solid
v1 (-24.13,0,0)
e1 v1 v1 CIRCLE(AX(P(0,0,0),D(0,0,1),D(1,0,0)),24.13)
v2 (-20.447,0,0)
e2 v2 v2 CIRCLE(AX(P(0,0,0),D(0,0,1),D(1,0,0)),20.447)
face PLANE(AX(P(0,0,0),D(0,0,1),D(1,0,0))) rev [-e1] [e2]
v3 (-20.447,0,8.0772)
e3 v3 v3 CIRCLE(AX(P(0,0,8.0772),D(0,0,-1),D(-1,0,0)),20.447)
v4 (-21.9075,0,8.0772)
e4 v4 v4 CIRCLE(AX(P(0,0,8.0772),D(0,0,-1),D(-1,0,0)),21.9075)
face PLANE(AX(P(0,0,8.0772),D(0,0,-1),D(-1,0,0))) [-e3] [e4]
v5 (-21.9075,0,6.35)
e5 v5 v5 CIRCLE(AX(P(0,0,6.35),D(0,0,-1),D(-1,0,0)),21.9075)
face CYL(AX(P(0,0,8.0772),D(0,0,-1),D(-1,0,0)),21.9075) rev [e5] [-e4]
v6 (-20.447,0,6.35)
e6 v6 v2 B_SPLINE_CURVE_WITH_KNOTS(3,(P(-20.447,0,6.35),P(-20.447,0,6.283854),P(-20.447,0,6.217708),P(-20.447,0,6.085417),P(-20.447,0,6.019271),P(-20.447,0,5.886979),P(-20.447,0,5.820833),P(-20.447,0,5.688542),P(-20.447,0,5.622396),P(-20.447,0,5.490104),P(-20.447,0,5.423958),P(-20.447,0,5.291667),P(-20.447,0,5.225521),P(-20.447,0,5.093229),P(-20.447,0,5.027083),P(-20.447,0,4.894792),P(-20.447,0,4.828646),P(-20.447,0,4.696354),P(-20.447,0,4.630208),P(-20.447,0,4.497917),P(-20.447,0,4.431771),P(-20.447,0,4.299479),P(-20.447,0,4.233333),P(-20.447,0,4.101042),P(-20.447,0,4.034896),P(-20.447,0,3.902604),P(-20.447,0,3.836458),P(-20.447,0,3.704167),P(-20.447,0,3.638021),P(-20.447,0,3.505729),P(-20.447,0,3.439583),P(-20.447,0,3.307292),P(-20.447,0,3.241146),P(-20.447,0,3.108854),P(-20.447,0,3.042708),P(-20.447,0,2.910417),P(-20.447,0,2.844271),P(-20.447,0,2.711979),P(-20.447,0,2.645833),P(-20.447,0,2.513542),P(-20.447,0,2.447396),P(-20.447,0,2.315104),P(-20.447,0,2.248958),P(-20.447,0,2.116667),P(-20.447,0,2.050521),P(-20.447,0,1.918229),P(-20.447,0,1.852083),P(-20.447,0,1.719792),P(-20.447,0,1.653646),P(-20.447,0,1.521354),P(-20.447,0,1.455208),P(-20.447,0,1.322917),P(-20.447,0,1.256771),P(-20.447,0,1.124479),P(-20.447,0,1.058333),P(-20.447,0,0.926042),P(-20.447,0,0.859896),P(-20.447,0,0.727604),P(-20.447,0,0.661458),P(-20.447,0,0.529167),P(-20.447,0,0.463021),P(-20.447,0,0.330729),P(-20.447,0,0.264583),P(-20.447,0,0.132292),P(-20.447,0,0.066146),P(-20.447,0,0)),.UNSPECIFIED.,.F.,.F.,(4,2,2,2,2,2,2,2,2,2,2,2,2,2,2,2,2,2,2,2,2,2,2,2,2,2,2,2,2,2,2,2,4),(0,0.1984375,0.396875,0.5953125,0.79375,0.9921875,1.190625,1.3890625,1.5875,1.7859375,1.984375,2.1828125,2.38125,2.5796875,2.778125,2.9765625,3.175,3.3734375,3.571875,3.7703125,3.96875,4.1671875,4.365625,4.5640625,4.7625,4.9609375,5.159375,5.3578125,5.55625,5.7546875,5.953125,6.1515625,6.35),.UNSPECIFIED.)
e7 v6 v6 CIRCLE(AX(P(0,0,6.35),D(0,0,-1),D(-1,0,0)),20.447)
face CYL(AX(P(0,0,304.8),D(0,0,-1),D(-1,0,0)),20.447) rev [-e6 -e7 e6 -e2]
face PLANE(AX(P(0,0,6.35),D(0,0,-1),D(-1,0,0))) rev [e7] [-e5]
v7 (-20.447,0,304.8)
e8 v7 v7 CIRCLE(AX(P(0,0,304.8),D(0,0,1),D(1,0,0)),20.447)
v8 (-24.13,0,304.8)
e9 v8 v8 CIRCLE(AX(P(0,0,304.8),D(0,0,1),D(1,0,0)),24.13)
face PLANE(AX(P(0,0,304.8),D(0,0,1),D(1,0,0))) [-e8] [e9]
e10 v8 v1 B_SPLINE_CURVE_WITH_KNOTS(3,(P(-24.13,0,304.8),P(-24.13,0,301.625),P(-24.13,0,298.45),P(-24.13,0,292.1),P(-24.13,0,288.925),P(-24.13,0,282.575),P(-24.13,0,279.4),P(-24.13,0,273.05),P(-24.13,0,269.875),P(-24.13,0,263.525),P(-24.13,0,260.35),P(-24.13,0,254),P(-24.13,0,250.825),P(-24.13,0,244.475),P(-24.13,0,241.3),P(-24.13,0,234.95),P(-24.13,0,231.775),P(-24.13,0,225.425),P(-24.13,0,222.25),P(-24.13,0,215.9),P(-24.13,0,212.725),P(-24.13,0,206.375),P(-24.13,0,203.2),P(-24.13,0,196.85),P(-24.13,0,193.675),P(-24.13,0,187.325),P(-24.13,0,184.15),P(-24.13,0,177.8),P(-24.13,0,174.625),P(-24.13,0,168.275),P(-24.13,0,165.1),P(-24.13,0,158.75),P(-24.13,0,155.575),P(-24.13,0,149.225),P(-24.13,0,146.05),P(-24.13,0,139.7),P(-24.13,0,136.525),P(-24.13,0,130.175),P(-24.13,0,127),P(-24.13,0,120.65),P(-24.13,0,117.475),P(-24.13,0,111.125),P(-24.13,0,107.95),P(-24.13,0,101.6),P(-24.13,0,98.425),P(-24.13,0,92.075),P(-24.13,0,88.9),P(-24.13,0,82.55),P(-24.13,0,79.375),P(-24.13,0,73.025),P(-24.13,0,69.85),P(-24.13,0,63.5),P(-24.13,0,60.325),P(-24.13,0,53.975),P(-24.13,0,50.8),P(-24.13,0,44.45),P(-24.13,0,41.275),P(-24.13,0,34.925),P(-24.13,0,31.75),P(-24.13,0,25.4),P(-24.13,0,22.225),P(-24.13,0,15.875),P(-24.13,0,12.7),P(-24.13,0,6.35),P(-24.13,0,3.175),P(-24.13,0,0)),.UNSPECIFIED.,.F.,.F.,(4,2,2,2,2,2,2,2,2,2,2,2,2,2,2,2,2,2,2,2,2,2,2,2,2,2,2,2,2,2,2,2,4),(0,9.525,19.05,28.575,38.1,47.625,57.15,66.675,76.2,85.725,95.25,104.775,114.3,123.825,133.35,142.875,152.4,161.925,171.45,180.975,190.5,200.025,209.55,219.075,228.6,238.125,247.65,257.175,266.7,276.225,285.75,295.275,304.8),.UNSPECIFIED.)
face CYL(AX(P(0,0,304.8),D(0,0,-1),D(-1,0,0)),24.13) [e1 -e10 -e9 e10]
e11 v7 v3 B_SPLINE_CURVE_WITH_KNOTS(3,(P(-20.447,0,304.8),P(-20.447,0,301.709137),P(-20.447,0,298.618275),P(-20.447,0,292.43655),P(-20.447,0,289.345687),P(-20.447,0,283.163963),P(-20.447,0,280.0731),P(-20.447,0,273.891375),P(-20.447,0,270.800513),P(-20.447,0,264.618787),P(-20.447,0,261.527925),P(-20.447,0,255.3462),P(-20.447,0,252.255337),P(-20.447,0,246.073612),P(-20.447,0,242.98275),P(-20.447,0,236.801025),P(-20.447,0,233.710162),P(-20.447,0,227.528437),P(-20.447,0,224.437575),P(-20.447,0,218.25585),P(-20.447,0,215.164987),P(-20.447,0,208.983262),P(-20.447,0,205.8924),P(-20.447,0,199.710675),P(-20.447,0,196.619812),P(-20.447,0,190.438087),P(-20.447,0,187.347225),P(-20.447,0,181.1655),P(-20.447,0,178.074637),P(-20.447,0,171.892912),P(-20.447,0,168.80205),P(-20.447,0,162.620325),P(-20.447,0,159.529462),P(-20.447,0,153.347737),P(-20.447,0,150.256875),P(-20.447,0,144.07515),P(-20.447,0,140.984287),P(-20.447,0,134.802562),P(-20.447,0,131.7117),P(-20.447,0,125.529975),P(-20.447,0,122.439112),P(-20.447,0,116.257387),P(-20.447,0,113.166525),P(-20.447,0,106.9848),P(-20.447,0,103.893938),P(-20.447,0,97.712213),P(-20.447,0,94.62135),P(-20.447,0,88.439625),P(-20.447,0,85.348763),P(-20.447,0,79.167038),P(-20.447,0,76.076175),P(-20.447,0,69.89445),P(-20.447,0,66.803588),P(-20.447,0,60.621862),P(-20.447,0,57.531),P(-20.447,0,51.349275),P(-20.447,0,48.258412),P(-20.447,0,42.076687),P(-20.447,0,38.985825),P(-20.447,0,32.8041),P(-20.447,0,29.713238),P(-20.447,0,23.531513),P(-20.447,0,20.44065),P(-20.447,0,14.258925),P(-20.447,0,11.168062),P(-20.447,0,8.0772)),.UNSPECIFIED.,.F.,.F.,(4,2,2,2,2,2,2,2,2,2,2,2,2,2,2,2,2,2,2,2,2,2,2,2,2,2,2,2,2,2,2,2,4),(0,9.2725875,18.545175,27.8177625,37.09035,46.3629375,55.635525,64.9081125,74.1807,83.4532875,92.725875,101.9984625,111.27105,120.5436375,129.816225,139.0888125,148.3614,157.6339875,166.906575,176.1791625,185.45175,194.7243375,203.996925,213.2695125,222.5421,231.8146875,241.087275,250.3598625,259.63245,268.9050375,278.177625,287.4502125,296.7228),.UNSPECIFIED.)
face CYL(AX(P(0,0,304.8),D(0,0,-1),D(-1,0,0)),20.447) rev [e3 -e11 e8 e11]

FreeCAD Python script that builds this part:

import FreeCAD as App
import Part
import Sketcher

V = App.Vector
Q = App.Units.Quantity

doc = App.newDocument("Part")
body = doc.addObject("PartDesign::Body", "Body")

# Sketch on XY plane
sketch1 = body.newObject("Sketcher::SketchObject", "Sketch")
sketch1.AttachmentSupport = (doc.getObject("XY_Plane"), [""])
sketch1.MapMode = "FlatFace"
sketch1.addGeometry(Part.Circle(V(0, 0, 0), V(0, 0, 1), 24), False)
sketch1.addGeometry(Part.Circle(V(0, 0, 0), V(0, 0, 1), 20), False)
sketch1.addConstraint(Sketcher.Constraint("Coincident", 0, 3, -1, 1))
sketch1.addConstraint(Sketcher.Constraint("Coincident", 1, 3, -1, 1))
sketch1.addConstraint(Sketcher.Constraint("Diameter", 0, Q("1.9 in")))
sketch1.addConstraint(Sketcher.Constraint("Diameter", 1, Q("1.61 in")))
pad1 = body.newObject("PartDesign::Pad", "Pad")
pad1.Profile = sketch1
pad1.Length = Q("12 in")

# Sketch on XY plane
sketch2 = body.newObject("Sketcher::SketchObject", "Sketch001")
sketch2.AttachmentSupport = (doc.getObject("XY_Plane"), [""])
sketch2.MapMode = "FlatFace"
sketch2.AttachmentOffset = App.Placement(V(0, 0, 0.25 * 25.4), App.Rotation())
sketch2.addGeometry(Part.Circle(V(0, 0, 0), V(0, 0, 1), 22), False)
sketch2.addGeometry(Part.Circle(V(0, 0, 0), V(0, 0, 1), 20), False)
sketch2.addConstraint(Sketcher.Constraint("Coincident", 0, 3, -1, 1))
sketch2.addConstraint(Sketcher.Constraint("Coincident", 1, 3, -1, 1))
sketch2.addConstraint(Sketcher.Constraint("Diameter", 1, Q("1.61 in")))
sketch2.addConstraint(Sketcher.Constraint("Diameter", 0, Q("1.725 in")))
pocket1 = body.newObject("PartDesign::Pocket", "Pocket")
pocket1.Profile = sketch2
pocket1.Length = Q("0.068 in")
pocket1.Reversed = True

doc.recompute()
